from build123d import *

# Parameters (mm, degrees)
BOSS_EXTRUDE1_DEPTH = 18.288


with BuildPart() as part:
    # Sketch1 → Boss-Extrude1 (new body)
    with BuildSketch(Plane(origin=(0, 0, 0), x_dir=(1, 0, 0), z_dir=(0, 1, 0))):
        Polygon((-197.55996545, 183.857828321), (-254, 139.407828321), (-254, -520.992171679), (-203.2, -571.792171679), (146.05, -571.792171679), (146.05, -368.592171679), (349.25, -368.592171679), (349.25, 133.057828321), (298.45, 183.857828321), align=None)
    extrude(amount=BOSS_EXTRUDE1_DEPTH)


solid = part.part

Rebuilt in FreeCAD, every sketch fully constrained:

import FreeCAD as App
import Part
import Sketcher
from FreeCAD import Vector
Q = App.Units.Quantity


def add_polygon(sketch, points):
    """Adds a closed chain of lines whose ends are joined by coincident constraints."""
    first, n = sketch.GeometryCount, len(points)
    for a, b in zip(points, points[1:] + points[:1]):
        sketch.addGeometry(Part.LineSegment(App.Vector(*a, 0), App.Vector(*b, 0)), False)
    for i in range(n):
        sketch.addConstraint(Sketcher.Constraint("Coincident", first + i, 2, first + (i + 1) % n, 1))

doc = App.newDocument("Part")
body = doc.addObject("PartDesign::Body", "Body")

# Sketch on XZ plane
sketch1 = doc.addObject("Sketcher::SketchObject", "Sketch")
body.addObject(sketch1)
sketch1.AttachmentSupport = (doc.XZ_Plane, [""])
sketch1.MapMode = "FlatFace"
add_polygon(sketch1, [(-197.559965, -183.857828), (-254, -139.407828), (-254, 520.992172), (-203.2, 571.792172), (146.05, 571.792172), (146.05, 368.592172), (349.25, 368.592172), (349.25, -133.057828), (298.45, -183.857828)])  # lines 0-8
sketch1.addConstraint([
    Sketcher.Constraint("Vertical", 1),
    Sketcher.Constraint("Horizontal", 3),
    Sketcher.Constraint("Vertical", 4),
    Sketcher.Constraint("Horizontal", 5),
    Sketcher.Constraint("Vertical", 6),
    Sketcher.Constraint("Horizontal", 8),
    Sketcher.Constraint("Parallel", 2, 7),
    Sketcher.Constraint("Equal", 5, 4),
    Sketcher.Constraint("Equal", 0, 2),
    Sketcher.Constraint("Equal", 2, 7),
    Sketcher.Constraint("DistanceX", 5, 1, 5, 2, Q("8 in")),
    Sketcher.Constraint("DistanceY", 1, 1, 1, 2, Q("26 in")),
    Sketcher.Constraint("DistanceX", 0, 2, -1, 1, Q("10 in")),
    Sketcher.Constraint("DistanceX", 2, 2, -1, 1, Q("8 in")),
    Sketcher.Constraint("Angle", 2, Q("45 deg")),
    Sketcher.Constraint("DistanceX", 3, 1, 3, 2, Q("13.75 in")),
    Sketcher.Constraint("DistanceY", 6, 2, 6, 1, Q("19.75 in")),
    Sketcher.Constraint("DistanceY", 0, 2, -1, 1, 139.407828),
])
pad1 = doc.addObject("PartDesign::Pad", "Pad")
body.addObject(pad1)
pad1.Profile = sketch1
pad1.Length = Q("0.72 in")
pad1.Reversed = True

doc.recompute()
